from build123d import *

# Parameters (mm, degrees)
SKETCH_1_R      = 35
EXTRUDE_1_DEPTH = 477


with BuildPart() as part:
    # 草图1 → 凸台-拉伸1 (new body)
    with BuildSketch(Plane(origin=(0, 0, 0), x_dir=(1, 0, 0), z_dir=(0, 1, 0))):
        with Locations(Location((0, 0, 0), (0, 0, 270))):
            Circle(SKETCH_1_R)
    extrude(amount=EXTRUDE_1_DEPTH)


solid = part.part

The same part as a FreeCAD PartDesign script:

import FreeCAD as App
import Part
import Sketcher
from FreeCAD import Vector
Q = App.Units.Quantity

doc = App.newDocument("Part")
body = doc.addObject("PartDesign::Body", "Body")

sketch1 = doc.addObject("Sketcher::SketchObject", "Sketch")
body.addObject(sketch1)
sketch1.AttachmentSupport = (doc.XZ_Plane, [""])
sketch1.MapMode = "FlatFace"
sketch1.addGeometry(Part.Circle(Vector(0, 0, 0), Vector(0, 0, 1), 35), False)
sketch1.addConstraint([
    Sketcher.Constraint("Coincident", 0, 3, -1, 1),
    Sketcher.Constraint("Diameter", 0, Q("70 mm")),
])
pad1 = doc.addObject("PartDesign::Pad", "Pad")
body.addObject(pad1)
pad1.Profile = sketch1
pad1.Length = 477
pad1.Reversed = True

doc.recompute()
